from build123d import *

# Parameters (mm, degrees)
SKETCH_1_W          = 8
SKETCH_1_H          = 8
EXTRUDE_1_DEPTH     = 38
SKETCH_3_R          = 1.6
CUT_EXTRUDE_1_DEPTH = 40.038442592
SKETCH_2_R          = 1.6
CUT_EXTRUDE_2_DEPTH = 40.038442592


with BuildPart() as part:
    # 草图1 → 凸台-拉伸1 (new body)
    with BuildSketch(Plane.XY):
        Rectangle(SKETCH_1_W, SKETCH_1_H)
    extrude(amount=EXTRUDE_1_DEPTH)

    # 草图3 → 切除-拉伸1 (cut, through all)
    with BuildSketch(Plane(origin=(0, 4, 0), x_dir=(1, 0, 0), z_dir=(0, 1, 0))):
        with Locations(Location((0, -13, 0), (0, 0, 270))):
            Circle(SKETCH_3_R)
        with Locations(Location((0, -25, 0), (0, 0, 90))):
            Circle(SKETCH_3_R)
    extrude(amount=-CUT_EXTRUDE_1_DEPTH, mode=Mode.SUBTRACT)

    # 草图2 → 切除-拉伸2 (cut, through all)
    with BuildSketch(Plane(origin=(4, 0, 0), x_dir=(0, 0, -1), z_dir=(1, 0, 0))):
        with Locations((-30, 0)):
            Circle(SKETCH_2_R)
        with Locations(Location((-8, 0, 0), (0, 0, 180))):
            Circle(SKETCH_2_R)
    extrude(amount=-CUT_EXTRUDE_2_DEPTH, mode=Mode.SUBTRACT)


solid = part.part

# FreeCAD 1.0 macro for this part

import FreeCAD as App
import Part
import Sketcher

doc = App.newDocument("Part")
params = doc.addObject("Spreadsheet::Sheet", "Params")
for row, (alias, value) in enumerate([
    ("sketch1_width", "8 mm"),
    ("pad1_length", "38 mm"),
    ("sketch2_diameter", "3.2 mm"),
    ("sketch3_diameter", "3.2 mm"),
], start=1):
    params.set(f"A{row}", alias)
    params.set(f"B{row}", "=" + value)
    params.setAlias(f"B{row}", alias)

body = doc.addObject("PartDesign::Body", "Body")

# Sketch on XY plane
sketch1 = body.newObject("Sketcher::SketchObject", "Sketch")
sketch1.AttachmentSupport = (doc.getObject("XY_Plane"), [""])
sketch1.MapMode = "FlatFace"
sketch1.addGeometry([
    Part.LineSegment(App.Vector(-4, 4, 0), App.Vector(-4, -4, 0)),
    Part.LineSegment(App.Vector(-4, -4, 0), App.Vector(4, -4, 0)),
    Part.LineSegment(App.Vector(4, -4, 0), App.Vector(4, 4, 0)),
    Part.LineSegment(App.Vector(4, 4, 0), App.Vector(-4, 4, 0)),
], False)
sketch1.addConstraint([
    Sketcher.Constraint("Coincident", 0, 2, 1, 1),
    Sketcher.Constraint("Coincident", 1, 2, 2, 1),
    Sketcher.Constraint("Coincident", 2, 2, 3, 1),
    Sketcher.Constraint("Coincident", 3, 2, 0, 1),
    Sketcher.Constraint("Vertical", 0),
    Sketcher.Constraint("Horizontal", 1),
    Sketcher.Constraint("Vertical", 2),
    Sketcher.Constraint("Horizontal", 3),
    Sketcher.Constraint("Symmetric", 0, 2, 2, 2, -1, 1),
    Sketcher.Constraint("Equal", 3, 0),
    Sketcher.Constraint("DistanceX", 1, 1, 1, 2, 8.0),
])
sketch1.setExpression("Constraints[10]", "Params.sketch1_width")
pad1 = body.newObject("PartDesign::Pad", "Pad")
pad1.Profile = sketch1
pad1.setExpression("Length", "Params.pad1_length")

# Sketch on XZ plane
sketch2 = body.newObject("Sketcher::SketchObject", "Sketch001")
sketch2.AttachmentSupport = (doc.getObject("XZ_Plane"), [""])
sketch2.MapMode = "FlatFace"
sketch2.AttachmentOffset = App.Placement(App.Vector(0, 0, -4), App.Rotation())
sketch2.addGeometry([
    Part.Circle(App.Vector(0, 13, 0), App.Vector(0, 0, 1), 1.6),
    Part.Circle(App.Vector(0, 25, 0), App.Vector(0, 0, 1), 1.6),
], False)
sketch2.addConstraint([
    Sketcher.Constraint("Equal", 0, 1),
    Sketcher.Constraint("PointOnObject", 0, 3, -2),
    Sketcher.Constraint("PointOnObject", 1, 3, -2),
    Sketcher.Constraint("Diameter", 0, 3.2),
    Sketcher.Constraint("DistanceY", -1, 1, 0, 3, 13.0),
    Sketcher.Constraint("DistanceY", -1, 1, 1, 3, 25.0),
])
sketch2.setExpression("Constraints[3]", "Params.sketch2_diameter")
pocket1 = body.newObject("PartDesign::Pocket", "Pocket")
pocket1.Profile = sketch2
pocket1.Type = "ThroughAll"
pocket1.Reversed = True

# Sketch on YZ plane
sketch3 = body.newObject("Sketcher::SketchObject", "Sketch002")
sketch3.AttachmentSupport = (doc.getObject("YZ_Plane"), [""])
sketch3.MapMode = "FlatFace"
sketch3.AttachmentOffset = App.Placement(App.Vector(0, 0, 4), App.Rotation())
sketch3.addGeometry([
    Part.Circle(App.Vector(0, 30, 0), App.Vector(0, 0, 1), 1.6),
    Part.Circle(App.Vector(0, 8, 0), App.Vector(0, 0, 1), 1.6),
], False)
sketch3.addConstraint([
    Sketcher.Constraint("Equal", 0, 1),
    Sketcher.Constraint("PointOnObject", 0, 3, -2),
    Sketcher.Constraint("PointOnObject", 1, 3, -2),
    Sketcher.Constraint("Diameter", 0, 3.2),
    Sketcher.Constraint("DistanceY", -1, 1, 0, 3, 30.0),
    Sketcher.Constraint("DistanceY", -1, 1, 1, 3, 8.0),
])
sketch3.setExpression("Constraints[3]", "Params.sketch3_diameter")
pocket2 = body.newObject("PartDesign::Pocket", "Pocket001")
pocket2.Profile = sketch3
pocket2.Type = "ThroughAll"

doc.recompute()
